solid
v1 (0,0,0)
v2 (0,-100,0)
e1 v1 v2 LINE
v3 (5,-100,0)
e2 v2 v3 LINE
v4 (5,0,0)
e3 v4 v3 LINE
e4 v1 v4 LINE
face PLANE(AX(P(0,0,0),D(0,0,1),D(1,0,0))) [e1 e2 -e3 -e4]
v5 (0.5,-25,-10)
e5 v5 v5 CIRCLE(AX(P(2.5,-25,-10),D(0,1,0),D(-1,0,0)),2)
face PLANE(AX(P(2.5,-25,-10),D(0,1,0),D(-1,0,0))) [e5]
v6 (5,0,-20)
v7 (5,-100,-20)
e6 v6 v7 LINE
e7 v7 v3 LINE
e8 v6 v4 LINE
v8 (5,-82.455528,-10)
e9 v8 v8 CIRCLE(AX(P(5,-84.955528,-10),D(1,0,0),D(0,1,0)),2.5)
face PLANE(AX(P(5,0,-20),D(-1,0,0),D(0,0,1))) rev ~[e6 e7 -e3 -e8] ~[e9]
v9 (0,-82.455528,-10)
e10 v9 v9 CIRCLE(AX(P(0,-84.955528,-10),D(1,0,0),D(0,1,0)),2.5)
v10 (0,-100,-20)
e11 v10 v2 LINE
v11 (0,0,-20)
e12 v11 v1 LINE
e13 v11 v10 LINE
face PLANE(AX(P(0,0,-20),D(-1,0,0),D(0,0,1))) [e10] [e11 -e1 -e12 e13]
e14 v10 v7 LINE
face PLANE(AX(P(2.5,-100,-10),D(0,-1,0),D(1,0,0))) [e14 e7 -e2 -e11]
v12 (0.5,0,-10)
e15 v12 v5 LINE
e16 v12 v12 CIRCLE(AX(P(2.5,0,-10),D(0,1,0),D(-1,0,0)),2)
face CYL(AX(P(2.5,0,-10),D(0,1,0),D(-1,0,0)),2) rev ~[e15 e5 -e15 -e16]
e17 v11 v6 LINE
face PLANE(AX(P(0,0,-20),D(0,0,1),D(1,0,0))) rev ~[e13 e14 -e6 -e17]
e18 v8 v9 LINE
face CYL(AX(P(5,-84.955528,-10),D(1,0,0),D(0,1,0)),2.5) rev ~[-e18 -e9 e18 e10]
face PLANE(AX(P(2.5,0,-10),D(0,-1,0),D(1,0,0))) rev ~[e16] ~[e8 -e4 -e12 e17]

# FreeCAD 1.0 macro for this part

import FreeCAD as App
import Part
import Sketcher
from FreeCAD import Vector

doc = App.newDocument("Part")
body = doc.addObject("PartDesign::Body", "Body")

sketch1 = doc.addObject("Sketcher::SketchObject", "Sketch")
body.addObject(sketch1)
sketch1.AttachmentSupport = (doc.XZ_Plane, [""])
sketch1.MapMode = "FlatFace"
sketch1.addGeometry(Part.LineSegment(Vector(0, 0, 0), Vector(0, -20, 0)), False)
sketch1.addGeometry(Part.LineSegment(Vector(0, -20, 0), Vector(5, -20, 0)), False)
sketch1.addGeometry(Part.LineSegment(Vector(5, -20, 0), Vector(5, 0, 0)), False)
sketch1.addGeometry(Part.LineSegment(Vector(5, 0, 0), Vector(0, 0, 0)), False)
sketch1.addConstraint(Sketcher.Constraint("Coincident", 0, 2, 1, 1))
sketch1.addConstraint(Sketcher.Constraint("Coincident", 1, 2, 2, 1))
sketch1.addConstraint(Sketcher.Constraint("Coincident", 2, 2, 3, 1))
sketch1.addConstraint(Sketcher.Constraint("Coincident", 3, 2, 0, 1))
sketch1.addConstraint(Sketcher.Constraint("Vertical", 0))
sketch1.addConstraint(Sketcher.Constraint("Horizontal", 1))
sketch1.addConstraint(Sketcher.Constraint("Vertical", 2))
sketch1.addConstraint(Sketcher.Constraint("Horizontal", 3))
sketch1.addConstraint(Sketcher.Constraint("Coincident", 3, 2, -1, 1))
sketch1.addConstraint(Sketcher.Constraint("DistanceX", 1, 1, 1, 2, 5.0))
sketch1.addConstraint(Sketcher.Constraint("DistanceY", 0, 2, 0, 1, 20.0))
pad1 = doc.addObject("PartDesign::Pad", "Pad")
body.addObject(pad1)
pad1.Profile = sketch1
pad1.Length = 100

sketch2 = doc.addObject("Sketcher::SketchObject", "Sketch001")
body.addObject(sketch2)
sketch2.AttachmentSupport = (doc.XZ_Plane, [""])
sketch2.MapMode = "FlatFace"
sketch2.addGeometry(Part.Circle(Vector(2.5, -10, 0), Vector(0, 0, 1), 2), False)
sketch2.addConstraint(Sketcher.Constraint("Diameter", 0, 4.0))
sketch2.addConstraint(Sketcher.Constraint("DistanceY", 0, 3, -1, 1, 10.0))
sketch2.addConstraint(Sketcher.Constraint("DistanceX", -1, 1, 0, 3, 2.5))
pocket1 = doc.addObject("PartDesign::Pocket", "Pocket")
body.addObject(pocket1)
pocket1.Profile = sketch2
pocket1.Length = 25
pocket1.Reversed = True

sketch3 = doc.addObject("Sketcher::SketchObject", "Sketch002")
body.addObject(sketch3)
sketch3.AttachmentSupport = (doc.YZ_Plane, [""])
sketch3.MapMode = "FlatFace"
sketch3.AttachmentOffset = App.Placement(Vector(0, 0, 5), App.Rotation())
sketch3.addGeometry(Part.Circle(Vector(-84.955528, -10, 0), Vector(0, 0, 1), 2.5), False)
sketch3.addConstraint(Sketcher.Constraint("Diameter", 0, 5.0))
sketch3.addConstraint(Sketcher.Constraint("DistanceY", 0, 3, -1, 1, 10.0))
sketch3.addConstraint(Sketcher.Constraint("DistanceX", 0, 3, -1, 1, 84.955528))
pocket2 = doc.addObject("PartDesign::Pocket", "Pocket001")
body.addObject(pocket2)
pocket2.Profile = sketch3
pocket2.Type = "ThroughAll"

doc.recompute()
